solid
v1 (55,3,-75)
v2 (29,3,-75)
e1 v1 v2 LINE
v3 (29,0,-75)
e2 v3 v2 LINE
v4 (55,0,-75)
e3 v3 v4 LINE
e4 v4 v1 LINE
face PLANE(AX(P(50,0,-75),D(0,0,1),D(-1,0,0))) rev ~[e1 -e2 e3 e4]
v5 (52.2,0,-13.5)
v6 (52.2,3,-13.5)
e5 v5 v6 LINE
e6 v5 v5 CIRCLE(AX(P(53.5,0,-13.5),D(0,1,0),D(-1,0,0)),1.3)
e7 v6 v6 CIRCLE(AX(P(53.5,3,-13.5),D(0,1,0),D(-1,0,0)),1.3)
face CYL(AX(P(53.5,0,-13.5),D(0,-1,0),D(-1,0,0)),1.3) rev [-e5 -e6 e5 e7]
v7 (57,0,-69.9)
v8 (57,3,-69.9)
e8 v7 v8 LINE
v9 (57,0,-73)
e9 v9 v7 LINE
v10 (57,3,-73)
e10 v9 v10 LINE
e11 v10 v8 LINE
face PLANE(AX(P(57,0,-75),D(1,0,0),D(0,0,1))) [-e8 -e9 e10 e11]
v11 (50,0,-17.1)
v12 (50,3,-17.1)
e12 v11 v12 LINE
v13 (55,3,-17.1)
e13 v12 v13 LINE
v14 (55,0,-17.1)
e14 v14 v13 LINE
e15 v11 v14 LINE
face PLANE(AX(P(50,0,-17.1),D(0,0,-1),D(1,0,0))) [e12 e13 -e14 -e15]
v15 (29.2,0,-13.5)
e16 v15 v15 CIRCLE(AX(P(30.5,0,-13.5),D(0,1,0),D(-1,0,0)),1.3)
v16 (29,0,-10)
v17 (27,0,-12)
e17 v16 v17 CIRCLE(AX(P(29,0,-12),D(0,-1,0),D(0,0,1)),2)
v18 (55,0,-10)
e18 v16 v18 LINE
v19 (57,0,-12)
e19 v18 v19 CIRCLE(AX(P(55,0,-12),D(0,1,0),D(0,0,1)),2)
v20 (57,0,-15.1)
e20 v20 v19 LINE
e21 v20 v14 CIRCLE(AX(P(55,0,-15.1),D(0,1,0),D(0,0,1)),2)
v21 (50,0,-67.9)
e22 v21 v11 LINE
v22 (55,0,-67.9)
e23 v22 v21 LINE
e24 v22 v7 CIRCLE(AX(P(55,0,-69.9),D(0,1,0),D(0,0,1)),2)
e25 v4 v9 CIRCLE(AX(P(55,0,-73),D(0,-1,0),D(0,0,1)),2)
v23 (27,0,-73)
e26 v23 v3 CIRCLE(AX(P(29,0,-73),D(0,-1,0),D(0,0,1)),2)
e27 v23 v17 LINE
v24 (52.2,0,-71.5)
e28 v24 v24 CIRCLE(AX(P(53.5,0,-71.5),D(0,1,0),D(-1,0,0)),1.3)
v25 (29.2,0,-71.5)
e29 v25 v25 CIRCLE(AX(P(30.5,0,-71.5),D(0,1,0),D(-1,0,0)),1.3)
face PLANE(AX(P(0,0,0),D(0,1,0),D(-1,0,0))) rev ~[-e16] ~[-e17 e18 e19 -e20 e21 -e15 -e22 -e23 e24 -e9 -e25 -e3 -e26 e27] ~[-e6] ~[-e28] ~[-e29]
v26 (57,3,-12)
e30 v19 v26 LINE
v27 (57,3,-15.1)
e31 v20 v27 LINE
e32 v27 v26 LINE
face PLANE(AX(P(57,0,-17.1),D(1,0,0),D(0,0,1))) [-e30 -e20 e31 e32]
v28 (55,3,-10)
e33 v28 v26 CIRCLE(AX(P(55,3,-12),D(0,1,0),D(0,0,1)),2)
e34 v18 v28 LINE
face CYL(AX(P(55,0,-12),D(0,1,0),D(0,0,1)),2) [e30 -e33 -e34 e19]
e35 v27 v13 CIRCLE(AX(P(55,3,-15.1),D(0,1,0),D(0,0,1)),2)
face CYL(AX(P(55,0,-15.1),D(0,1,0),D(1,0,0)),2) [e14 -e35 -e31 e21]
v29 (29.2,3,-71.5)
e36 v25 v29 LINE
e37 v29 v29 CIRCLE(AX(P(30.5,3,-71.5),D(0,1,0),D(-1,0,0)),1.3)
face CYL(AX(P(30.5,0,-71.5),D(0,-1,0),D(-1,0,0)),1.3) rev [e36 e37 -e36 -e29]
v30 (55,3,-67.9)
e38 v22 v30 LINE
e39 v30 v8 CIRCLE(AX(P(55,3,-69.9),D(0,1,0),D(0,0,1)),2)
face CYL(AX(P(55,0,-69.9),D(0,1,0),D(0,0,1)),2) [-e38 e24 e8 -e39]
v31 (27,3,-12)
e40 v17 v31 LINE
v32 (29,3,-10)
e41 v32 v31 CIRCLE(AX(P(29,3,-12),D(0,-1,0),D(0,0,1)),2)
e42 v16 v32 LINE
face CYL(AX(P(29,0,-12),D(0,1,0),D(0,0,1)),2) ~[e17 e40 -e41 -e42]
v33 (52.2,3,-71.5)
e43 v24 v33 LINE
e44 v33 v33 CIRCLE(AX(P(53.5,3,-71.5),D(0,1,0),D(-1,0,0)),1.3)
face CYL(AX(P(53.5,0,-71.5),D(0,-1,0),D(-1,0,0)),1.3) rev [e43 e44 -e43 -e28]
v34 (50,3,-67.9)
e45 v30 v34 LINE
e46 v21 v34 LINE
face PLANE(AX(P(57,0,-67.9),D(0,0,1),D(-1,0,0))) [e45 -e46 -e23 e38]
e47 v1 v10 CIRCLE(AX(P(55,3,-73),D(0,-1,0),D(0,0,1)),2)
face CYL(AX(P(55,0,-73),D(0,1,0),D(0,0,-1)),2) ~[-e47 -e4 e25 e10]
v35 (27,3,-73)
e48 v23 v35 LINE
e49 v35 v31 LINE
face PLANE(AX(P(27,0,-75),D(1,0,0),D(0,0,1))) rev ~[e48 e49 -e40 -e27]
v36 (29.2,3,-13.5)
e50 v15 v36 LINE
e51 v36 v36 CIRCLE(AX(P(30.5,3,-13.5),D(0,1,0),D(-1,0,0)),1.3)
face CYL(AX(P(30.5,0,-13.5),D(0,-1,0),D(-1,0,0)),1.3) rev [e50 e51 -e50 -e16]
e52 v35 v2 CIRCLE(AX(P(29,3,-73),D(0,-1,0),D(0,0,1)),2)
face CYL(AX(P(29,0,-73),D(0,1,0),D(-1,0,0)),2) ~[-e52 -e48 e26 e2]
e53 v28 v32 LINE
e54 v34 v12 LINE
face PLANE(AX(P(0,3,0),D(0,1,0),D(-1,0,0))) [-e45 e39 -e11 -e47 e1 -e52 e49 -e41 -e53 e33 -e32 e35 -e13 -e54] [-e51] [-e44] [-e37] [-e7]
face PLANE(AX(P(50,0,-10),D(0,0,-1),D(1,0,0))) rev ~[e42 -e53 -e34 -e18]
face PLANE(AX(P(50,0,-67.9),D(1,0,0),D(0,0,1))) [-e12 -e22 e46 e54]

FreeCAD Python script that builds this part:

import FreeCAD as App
import Part
import Sketcher
from FreeCAD import Vector
Q = App.Units.Quantity


def edges_at(feature, points):
    """Names of the edges that pass closest to the given points."""
    edges = feature.Shape.Edges
    near = lambda p: min(range(len(edges)), key=lambda i: edges[i].distToShape(Part.Vertex(*p))[0])
    return sorted({f"Edge{near(p) + 1}" for p in points})

doc = App.newDocument("Part")
params = doc.addObject("Spreadsheet::Sheet", "Params")
for row, (alias, value) in enumerate([
    ("sketch1_diameter", "2.6 mm"),
    ("sketch1_width", "7 mm"),
    ("sketch1_width2", "30 mm"),
    ("sketch1_height", "65 mm"),
    ("sketch1_height2", "50.8 mm"),
    ("pad1_length", "3 mm"),
    ("fillet_radius", "2 mm"),
], start=1):
    params.set(f"A{row}", alias)
    params.set(f"B{row}", "=" + value)
    params.setAlias(f"B{row}", alias)

body = doc.addObject("PartDesign::Body", "Body")

# Sketch on XZ plane
sketch1 = doc.addObject("Sketcher::SketchObject", "Sketch")
body.addObject(sketch1)
sketch1.AttachmentSupport = (doc.XZ_Plane, [""])
sketch1.MapMode = "FlatFace"
sketch1.addGeometry(Part.LineSegment(Vector(57, -10, 0), Vector(57, -17.1, 0)), False)
sketch1.addGeometry(Part.LineSegment(Vector(57, -17.1, 0), Vector(50, -17.1, 0)), False)
sketch1.addGeometry(Part.LineSegment(Vector(50, -17.1, 0), Vector(50, -67.9, 0)), False)
sketch1.addGeometry(Part.LineSegment(Vector(50, -67.9, 0), Vector(57, -67.9, 0)), False)
sketch1.addGeometry(Part.LineSegment(Vector(57, -67.9, 0), Vector(57, -75, 0)), False)
sketch1.addGeometry(Part.LineSegment(Vector(57, -75, 0), Vector(27, -75, 0)), False)
sketch1.addGeometry(Part.LineSegment(Vector(27, -75, 0), Vector(27, -10, 0)), False)
sketch1.addGeometry(Part.LineSegment(Vector(27, -10, 0), Vector(57, -10, 0)), False)
sketch1.addGeometry(Part.Circle(Vector(53.5, -13.5, 0), Vector(0, 0, 1), 1.3), False)
sketch1.addGeometry(Part.Circle(Vector(30.5, -13.5, 0), Vector(0, 0, 1), 1.3), False)
sketch1.addGeometry(Part.Circle(Vector(30.5, -71.5, 0), Vector(0, 0, 1), 1.3), False)
sketch1.addGeometry(Part.Circle(Vector(53.5, -71.5, 0), Vector(0, 0, 1), 1.3), False)
sketch1.addConstraint(Sketcher.Constraint("Coincident", 0, 2, 1, 1))
sketch1.addConstraint(Sketcher.Constraint("Coincident", 1, 2, 2, 1))
sketch1.addConstraint(Sketcher.Constraint("Coincident", 2, 2, 3, 1))
sketch1.addConstraint(Sketcher.Constraint("Coincident", 3, 2, 4, 1))
sketch1.addConstraint(Sketcher.Constraint("Coincident", 4, 2, 5, 1))
sketch1.addConstraint(Sketcher.Constraint("Coincident", 5, 2, 6, 1))
sketch1.addConstraint(Sketcher.Constraint("Coincident", 6, 2, 7, 1))
sketch1.addConstraint(Sketcher.Constraint("Coincident", 7, 2, 0, 1))
sketch1.addConstraint(Sketcher.Constraint("Vertical", 0))
sketch1.addConstraint(Sketcher.Constraint("Horizontal", 1))
sketch1.addConstraint(Sketcher.Constraint("Vertical", 2))
sketch1.addConstraint(Sketcher.Constraint("Horizontal", 3))
sketch1.addConstraint(Sketcher.Constraint("Vertical", 4))
sketch1.addConstraint(Sketcher.Constraint("Horizontal", 5))
sketch1.addConstraint(Sketcher.Constraint("Vertical", 6))
sketch1.addConstraint(Sketcher.Constraint("Horizontal", 7))
sketch1.addConstraint(Sketcher.Constraint("Equal", 8, 9))
sketch1.addConstraint(Sketcher.Constraint("Equal", 9, 10))
sketch1.addConstraint(Sketcher.Constraint("Equal", 10, 11))
sketch1.addConstraint(Sketcher.Constraint("Horizontal", 8, 3, 9, 3))
sketch1.addConstraint(Sketcher.Constraint("Horizontal", 10, 3, 11, 3))
sketch1.addConstraint(Sketcher.Constraint("Vertical", 9, 3, 10, 3))
sketch1.addConstraint(Sketcher.Constraint("Vertical", 8, 3, 11, 3))
sketch1.addConstraint(Sketcher.Constraint("Vertical", 0, 2, 3, 2))
sketch1.addConstraint(Sketcher.Constraint("Equal", 0, 4))
sketch1.addConstraint(Sketcher.Constraint("Diameter", 8, Q("2.6 mm")))
sketch1.addConstraint(Sketcher.Constraint("DistanceX", 1, 2, 1, 1, Q("7 mm")))
sketch1.addConstraint(Sketcher.Constraint("DistanceX", 5, 2, 5, 1, Q("30 mm")))
sketch1.addConstraint(Sketcher.Constraint("DistanceY", 6, 1, 6, 2, Q("65 mm")))
sketch1.addConstraint(Sketcher.Constraint("DistanceY", 2, 2, 2, 1, Q("50.8 mm")))
sketch1.addConstraint(Sketcher.Constraint("DistanceX", -1, 1, 1, 2, Q("50 mm")))
sketch1.addConstraint(Sketcher.Constraint("DistanceY", 6, 2, -1, 1, Q("10 mm")))
sketch1.addConstraint(Sketcher.Constraint("DistanceX", 8, 3, 0, 2, Q("3.5 mm")))
sketch1.addConstraint(Sketcher.Constraint("DistanceY", 4, 2, 11, 3, Q("3.5 mm")))
sketch1.addConstraint(Sketcher.Constraint("DistanceX", 5, 2, 10, 3, Q("3.5 mm")))
sketch1.addConstraint(Sketcher.Constraint("DistanceY", 9, 3, 6, 2, Q("3.5 mm")))
sketch1.setExpression("Constraints[25]", "Params.sketch1_diameter")
sketch1.setExpression("Constraints[26]", "Params.sketch1_width")
sketch1.setExpression("Constraints[27]", "Params.sketch1_width2")
sketch1.setExpression("Constraints[28]", "Params.sketch1_height")
sketch1.setExpression("Constraints[29]", "Params.sketch1_height2")
pad1 = doc.addObject("PartDesign::Pad", "Pad")
body.addObject(pad1)
pad1.Profile = sketch1
pad1.setExpression("Length", "Params.pad1_length")
pad1.Reversed = True
doc.recompute()

fillet = doc.addObject("PartDesign::Fillet", "Fillet")
body.addObject(fillet)
fillet.Base = (pad1, edges_at(pad1, [
    (27, 1.5, -10),
    (57, 1.5, -10),
    (57, 1.5, -17.1),
    (57, 1.5, -67.9),
    (57, 1.5, -75),
    (27, 1.5, -75),
]))
fillet.setExpression("Radius", "Params.fillet_radius")

doc.recompute()
